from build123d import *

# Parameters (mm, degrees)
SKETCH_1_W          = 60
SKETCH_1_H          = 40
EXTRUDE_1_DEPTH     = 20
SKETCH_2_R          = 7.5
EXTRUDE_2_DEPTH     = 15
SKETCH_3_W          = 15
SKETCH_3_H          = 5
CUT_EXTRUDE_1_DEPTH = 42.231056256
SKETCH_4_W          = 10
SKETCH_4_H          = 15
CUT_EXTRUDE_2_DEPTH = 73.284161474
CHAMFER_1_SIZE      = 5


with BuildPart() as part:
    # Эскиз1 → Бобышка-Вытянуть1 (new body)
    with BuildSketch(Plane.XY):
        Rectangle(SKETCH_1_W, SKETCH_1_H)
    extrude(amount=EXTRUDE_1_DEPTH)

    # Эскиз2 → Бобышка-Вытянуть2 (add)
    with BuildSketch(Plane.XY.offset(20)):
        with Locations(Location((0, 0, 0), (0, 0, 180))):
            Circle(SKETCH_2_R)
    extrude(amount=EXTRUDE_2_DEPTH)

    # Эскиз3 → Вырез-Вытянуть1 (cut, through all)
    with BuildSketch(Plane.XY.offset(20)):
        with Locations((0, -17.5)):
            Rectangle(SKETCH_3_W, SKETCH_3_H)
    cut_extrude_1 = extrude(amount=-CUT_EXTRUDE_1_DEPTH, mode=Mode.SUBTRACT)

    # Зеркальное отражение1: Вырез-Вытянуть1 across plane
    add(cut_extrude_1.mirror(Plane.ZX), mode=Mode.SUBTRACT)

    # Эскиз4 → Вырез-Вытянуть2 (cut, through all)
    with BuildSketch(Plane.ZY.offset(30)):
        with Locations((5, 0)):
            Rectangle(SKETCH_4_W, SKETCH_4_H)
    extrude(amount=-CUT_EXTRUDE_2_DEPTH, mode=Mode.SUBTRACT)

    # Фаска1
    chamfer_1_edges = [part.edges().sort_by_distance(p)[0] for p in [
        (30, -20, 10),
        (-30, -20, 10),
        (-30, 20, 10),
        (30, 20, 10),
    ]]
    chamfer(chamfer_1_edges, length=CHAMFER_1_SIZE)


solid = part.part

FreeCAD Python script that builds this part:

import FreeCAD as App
import Part
import Sketcher


def edges_at(feature, points):
    """Names of the edges that pass closest to the given points."""
    edges = feature.Shape.Edges
    near = lambda p: min(range(len(edges)), key=lambda i: edges[i].distToShape(Part.Vertex(*p))[0])
    return sorted({f"Edge{near(p) + 1}" for p in points})


def add_polygon(sketch, points):
    """Adds a closed chain of lines whose ends are joined by coincident constraints."""
    first, n = sketch.GeometryCount, len(points)
    for a, b in zip(points, points[1:] + points[:1]):
        sketch.addGeometry(Part.LineSegment(App.Vector(*a, 0), App.Vector(*b, 0)), False)
    for i in range(n):
        sketch.addConstraint(Sketcher.Constraint("Coincident", first + i, 2, first + (i + 1) % n, 1))

doc = App.newDocument("Part")
body = doc.addObject("PartDesign::Body", "Body")

# Sketch on XY plane
sketch1 = body.newObject("Sketcher::SketchObject", "Sketch")
sketch1.AttachmentSupport = (doc.getObject("XY_Plane"), [""])
sketch1.MapMode = "FlatFace"
add_polygon(sketch1, [(-30, 20), (-30, -20), (30, -20), (30, 20)])  # lines 0-3
sketch1.addConstraint([
    Sketcher.Constraint("Vertical", 0),
    Sketcher.Constraint("Horizontal", 1),
    Sketcher.Constraint("Vertical", 2),
    Sketcher.Constraint("Horizontal", 3),
    Sketcher.Constraint("Symmetric", 0, 2, 2, 2, -1, 1),
    Sketcher.Constraint("DistanceX", 1, 1, 1, 2, 60.0),
    Sketcher.Constraint("DistanceY", 0, 2, 0, 1, 40.0),
])
pad1 = body.newObject("PartDesign::Pad", "Pad")
pad1.Profile = sketch1
pad1.Length = 20

# Sketch on XY plane
sketch2 = body.newObject("Sketcher::SketchObject", "Sketch001")
sketch2.AttachmentSupport = (doc.getObject("XY_Plane"), [""])
sketch2.MapMode = "FlatFace"
sketch2.AttachmentOffset = App.Placement(App.Vector(0, 0, 20), App.Rotation())
sketch2.addGeometry(Part.Circle(App.Vector(0, 0, 0), App.Vector(0, 0, 1), 8), False)
sketch2.addConstraint([
    Sketcher.Constraint("Coincident", 0, 3, -1, 1),
    Sketcher.Constraint("Diameter", 0, 15.0),
])
pad2 = body.newObject("PartDesign::Pad", "Pad001")
pad2.Profile = sketch2
pad2.Length = 15

# Sketch on XY plane
sketch3 = body.newObject("Sketcher::SketchObject", "Sketch002")
sketch3.AttachmentSupport = (doc.getObject("XY_Plane"), [""])
sketch3.MapMode = "FlatFace"
sketch3.AttachmentOffset = App.Placement(App.Vector(0, 0, 20), App.Rotation())
add_polygon(sketch3, [(-8, -15), (-8, -20), (8, -20), (8, -15)])  # lines 0-3
sketch3.addConstraint([
    Sketcher.Constraint("Vertical", 0),
    Sketcher.Constraint("Horizontal", 1),
    Sketcher.Constraint("Vertical", 2),
    Sketcher.Constraint("Horizontal", 3),
    Sketcher.Constraint("DistanceX", 1, 1, 1, 2, 15.0),
    Sketcher.Constraint("DistanceY", 0, 2, 0, 1, 5.0),
    Sketcher.Constraint("DistanceY", 0, 2, -1, 1, 20.0),
    Sketcher.Constraint("DistanceX", 0, 2, -1, 1, 7.5),
])
pocket1 = body.newObject("PartDesign::Pocket", "Pocket")
pocket1.Profile = sketch3
pocket1.Type = "ThroughAll"
doc.recompute()

mirrored = body.newObject("PartDesign::Mirrored", "Mirrored")
mirrored.Originals = [pocket1]
mirrored.MirrorPlane = (doc.getObject("XZ_Plane"), [""])
body.Tip = mirrored

# Sketch on YZ plane
sketch4 = body.newObject("Sketcher::SketchObject", "Sketch003")
sketch4.AttachmentSupport = (doc.getObject("YZ_Plane"), [""])
sketch4.MapMode = "FlatFace"
sketch4.AttachmentOffset = App.Placement(App.Vector(0, 0, -30), App.Rotation())
add_polygon(sketch4, [(8, 0), (-8, 0), (-8, 10), (8, 10)])  # lines 0-3
sketch4.addConstraint([
    Sketcher.Constraint("Horizontal", 0),
    Sketcher.Constraint("Vertical", 1),
    Sketcher.Constraint("Horizontal", 2),
    Sketcher.Constraint("Vertical", 3),
    Sketcher.Constraint("Symmetric", 0, 2, 3, 2, -1, 1),
    Sketcher.Constraint("DistanceX", 0, 2, 0, 1, 15.0),
    Sketcher.Constraint("DistanceY", 1, 1, 1, 2, 10.0),
])
pocket2 = body.newObject("PartDesign::Pocket", "Pocket001")
pocket2.Profile = sketch4
pocket2.Type = "ThroughAll"
pocket2.Reversed = True
doc.recompute()

chamfer = body.newObject("PartDesign::Chamfer", "Chamfer")
chamfer.Base = (pocket2, edges_at(pocket2, [
    (30, -20, 10),
    (-30, -20, 10),
    (-30, 20, 10),
    (30, 20, 10),
]))
chamfer.Size = 5

doc.recompute()
